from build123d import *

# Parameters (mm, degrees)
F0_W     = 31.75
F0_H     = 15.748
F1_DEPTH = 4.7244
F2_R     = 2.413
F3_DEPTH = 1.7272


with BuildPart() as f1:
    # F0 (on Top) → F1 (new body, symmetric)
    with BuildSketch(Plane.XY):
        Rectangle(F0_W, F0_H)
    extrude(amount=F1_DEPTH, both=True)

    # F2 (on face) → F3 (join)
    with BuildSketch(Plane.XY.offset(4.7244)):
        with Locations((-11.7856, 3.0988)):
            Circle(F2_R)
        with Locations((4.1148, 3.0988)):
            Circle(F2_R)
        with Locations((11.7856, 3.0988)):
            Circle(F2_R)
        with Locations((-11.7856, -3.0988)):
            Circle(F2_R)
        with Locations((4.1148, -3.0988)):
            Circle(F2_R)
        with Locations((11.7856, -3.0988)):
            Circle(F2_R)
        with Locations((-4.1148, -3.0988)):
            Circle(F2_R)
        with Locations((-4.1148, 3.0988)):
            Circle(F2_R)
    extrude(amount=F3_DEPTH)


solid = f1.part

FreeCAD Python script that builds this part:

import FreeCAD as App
import Part
import Sketcher

V = App.Vector
Q = App.Units.Quantity

doc = App.newDocument("Part")
body = doc.addObject("PartDesign::Body", "Body")

sketch1 = doc.addObject("Sketcher::SketchObject", "Sketch")
body.addObject(sketch1)
sketch1.AttachmentSupport = (doc.XY_Plane, [""])
sketch1.MapMode = "FlatFace"
sketch1.addGeometry([
    Part.LineSegment(V(-16, 8, 0), V(-16, -8, 0)),
    Part.LineSegment(V(-16, -8, 0), V(16, -8, 0)),
    Part.LineSegment(V(16, -8, 0), V(16, 8, 0)),
    Part.LineSegment(V(16, 8, 0), V(-16, 8, 0)),
], False)
sketch1.addConstraint([
    Sketcher.Constraint("Coincident", 0, 2, 1, 1),
    Sketcher.Constraint("Coincident", 1, 2, 2, 1),
    Sketcher.Constraint("Coincident", 2, 2, 3, 1),
    Sketcher.Constraint("Coincident", 3, 2, 0, 1),
    Sketcher.Constraint("Vertical", 0),
    Sketcher.Constraint("Horizontal", 1),
    Sketcher.Constraint("Vertical", 2),
    Sketcher.Constraint("Horizontal", 3),
    Sketcher.Constraint("Symmetric", 0, 2, 2, 2, -1, 1),
    Sketcher.Constraint("DistanceX", 1, 1, 1, 2, Q("1.25 in")),
    Sketcher.Constraint("DistanceY", 0, 2, 0, 1, Q("0.62 in")),
])
pad1 = doc.addObject("PartDesign::Pad", "Pad")
body.addObject(pad1)
pad1.Profile = sketch1
pad1.Length = Q("0.372 in")
pad1.Midplane = True

sketch2 = doc.addObject("Sketcher::SketchObject", "Sketch001")
body.addObject(sketch2)
sketch2.AttachmentSupport = (doc.XY_Plane, [""])
sketch2.MapMode = "FlatFace"
sketch2.AttachmentOffset = App.Placement(V(0, 0, 0.186 * 25.4), App.Rotation())
sketch2.addGeometry([
    Part.Circle(V(-11.8, 3.1, 0), V(0, 0, 1), 2.4),
    Part.Circle(V(4.1, 3.1, 0), V(0, 0, 1), 2.4),
    Part.Circle(V(11.8, 3.1, 0), V(0, 0, 1), 2.4),
    Part.Circle(V(-11.8, -3.1, 0), V(0, 0, 1), 2.4),
    Part.Circle(V(4.1, -3.1, 0), V(0, 0, 1), 2.4),
    Part.Circle(V(11.8, -3.1, 0), V(0, 0, 1), 2.4),
    Part.Circle(V(-4.1, -3.1, 0), V(0, 0, 1), 2.4),
    Part.Circle(V(-4.1, 3.1, 0), V(0, 0, 1), 2.4),
], False)
sketch2.addConstraint([
    Sketcher.Constraint("Equal", 0, 1),
    Sketcher.Constraint("Equal", 1, 2),
    Sketcher.Constraint("Equal", 2, 3),
    Sketcher.Constraint("Equal", 3, 4),
    Sketcher.Constraint("Equal", 4, 5),
    Sketcher.Constraint("Equal", 5, 6),
    Sketcher.Constraint("Equal", 6, 7),
    Sketcher.Constraint("Symmetric", 2, 3, 3, 3, -1, 1),
    Sketcher.Constraint("Symmetric", 0, 3, 5, 3, -1, 1),
    Sketcher.Constraint("Symmetric", 1, 3, 6, 3, -1, 1),
    Sketcher.Constraint("Symmetric", 4, 3, 7, 3, -1, 1),
    Sketcher.Constraint("Symmetric", 0, 3, 2, 3, -2),
    Sketcher.Constraint("Symmetric", 4, 3, 6, 3, -2),
    Sketcher.Constraint("Horizontal", 0, 3, 1, 3),
    Sketcher.Constraint("Diameter", 0, Q("0.19 in")),
    Sketcher.Constraint("DistanceX", 0, 3, -1, 1, Q("0.464 in")),
    Sketcher.Constraint("DistanceY", -1, 1, 0, 3, Q("0.122 in")),
    Sketcher.Constraint("DistanceX", -1, 1, 1, 3, Q("0.162 in")),
])
pad2 = doc.addObject("PartDesign::Pad", "Pad001")
body.addObject(pad2)
pad2.Profile = sketch2
pad2.Length = Q("0.068 in")

doc.recompute()
